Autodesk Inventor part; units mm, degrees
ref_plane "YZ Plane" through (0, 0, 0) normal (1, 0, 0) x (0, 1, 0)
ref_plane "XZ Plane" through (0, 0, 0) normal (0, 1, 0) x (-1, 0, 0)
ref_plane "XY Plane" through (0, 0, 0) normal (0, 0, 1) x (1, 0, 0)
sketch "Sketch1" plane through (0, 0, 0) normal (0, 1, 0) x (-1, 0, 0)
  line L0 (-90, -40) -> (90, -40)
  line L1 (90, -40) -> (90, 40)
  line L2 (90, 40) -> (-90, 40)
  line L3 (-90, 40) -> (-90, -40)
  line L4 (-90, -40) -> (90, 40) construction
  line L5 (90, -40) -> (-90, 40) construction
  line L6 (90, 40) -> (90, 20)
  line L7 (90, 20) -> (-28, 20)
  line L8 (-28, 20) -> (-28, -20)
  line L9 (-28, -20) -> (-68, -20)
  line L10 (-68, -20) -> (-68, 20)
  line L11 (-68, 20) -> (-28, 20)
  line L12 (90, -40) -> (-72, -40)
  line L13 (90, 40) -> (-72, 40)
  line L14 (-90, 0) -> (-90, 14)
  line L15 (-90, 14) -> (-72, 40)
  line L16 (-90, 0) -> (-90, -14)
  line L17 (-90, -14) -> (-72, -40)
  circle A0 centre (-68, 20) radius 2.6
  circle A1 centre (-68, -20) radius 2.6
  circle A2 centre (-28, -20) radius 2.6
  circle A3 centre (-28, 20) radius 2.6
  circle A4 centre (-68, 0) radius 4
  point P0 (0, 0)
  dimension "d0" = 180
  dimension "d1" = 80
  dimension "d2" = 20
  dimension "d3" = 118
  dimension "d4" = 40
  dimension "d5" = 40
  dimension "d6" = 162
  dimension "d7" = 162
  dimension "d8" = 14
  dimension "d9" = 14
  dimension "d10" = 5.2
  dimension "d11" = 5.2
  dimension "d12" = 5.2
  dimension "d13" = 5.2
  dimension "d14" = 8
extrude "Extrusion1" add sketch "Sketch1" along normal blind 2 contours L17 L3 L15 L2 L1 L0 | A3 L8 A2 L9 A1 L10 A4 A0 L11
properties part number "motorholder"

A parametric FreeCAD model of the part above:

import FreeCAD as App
import Part
import Sketcher
Q = App.Units.Quantity

doc = App.newDocument("Part")
body = doc.addObject("PartDesign::Body", "Body")

# Sketch on XZ plane
sketch1 = body.newObject("Sketcher::SketchObject", "Sketch")
sketch1.AttachmentSupport = (doc.getObject("XZ_Plane"), [""])
sketch1.MapMode = "FlatFace"
sketch1.addGeometry([
    Part.LineSegment(App.Vector(90, -14, 0), App.Vector(72, -40, 0)),  # 0
    Part.LineSegment(App.Vector(72, -40, 0), App.Vector(-90, -40, 0)),  # 1
    Part.LineSegment(App.Vector(-90, -40, 0), App.Vector(-90, 20, 0)),  # 2
    Part.LineSegment(App.Vector(-90, 20, 0), App.Vector(-90, 40, 0)),  # 3
    Part.LineSegment(App.Vector(-90, 40, 0), App.Vector(72, 40, 0)),  # 4
    Part.LineSegment(App.Vector(72, 40, 0), App.Vector(90, 14, 0)),  # 5
    Part.LineSegment(App.Vector(90, 14, 0), App.Vector(90, -14, 0)),  # 6
    Part.Circle(App.Vector(28, 20, 0), App.Vector(0, 0, 1), 2.6),  # 7
    Part.Circle(App.Vector(68, 20, 0), App.Vector(0, 0, 1), 2.6),  # 8
    Part.Circle(App.Vector(68, 0, 0), App.Vector(0, 0, 1), 4),  # 9
    Part.Circle(App.Vector(68, -20, 0), App.Vector(0, 0, 1), 2.6),  # 10
    Part.Circle(App.Vector(28, -20, 0), App.Vector(0, 0, 1), 2.6),  # 11
], False)
sketch1.addConstraint([
    Sketcher.Constraint("Coincident", 0, 2, 1, 1),
    Sketcher.Constraint("Coincident", 1, 2, 2, 1),
    Sketcher.Constraint("Coincident", 2, 2, 3, 1),
    Sketcher.Constraint("Coincident", 3, 2, 4, 1),
    Sketcher.Constraint("Coincident", 4, 2, 5, 1),
    Sketcher.Constraint("Coincident", 5, 2, 6, 1),
    Sketcher.Constraint("Coincident", 6, 2, 0, 1),
    Sketcher.Constraint("Horizontal", 1),
    Sketcher.Constraint("Vertical", 2),
    Sketcher.Constraint("Vertical", 3),
    Sketcher.Constraint("Horizontal", 4),
    Sketcher.Constraint("Vertical", 6),
    Sketcher.Constraint("Equal", 7, 8),
    Sketcher.Constraint("Equal", 8, 10),
    Sketcher.Constraint("Equal", 10, 11),
    Sketcher.Constraint("Symmetric", 8, 3, 10, 3, -1),
    Sketcher.Constraint("Symmetric", 7, 3, 11, 3, -1),
    Sketcher.Constraint("Symmetric", 0, 2, 4, 2, -1),
    Sketcher.Constraint("PointOnObject", 9, 3, -1),
    Sketcher.Constraint("Horizontal", 7, 3, 8, 3),
    Sketcher.Constraint("Horizontal", 8, 3, 2, 2),
    Sketcher.Constraint("Vertical", 8, 3, 9, 3),
    Sketcher.Constraint("Equal", 0, 5),
    Sketcher.Constraint("Diameter", 9, Q("8 mm")),
    Sketcher.Constraint("Diameter", 7, Q("5.2 mm")),
    Sketcher.Constraint("DistanceX", 1, 2, 1, 1, Q("162 mm")),
    Sketcher.Constraint("DistanceY", 3, 1, 3, 2, Q("20 mm")),
    Sketcher.Constraint("DistanceY", -1, 1, 7, 3, Q("20 mm")),
    Sketcher.Constraint("DistanceY", -1, 1, 5, 2, Q("14 mm")),
    Sketcher.Constraint("DistanceX", 7, 3, 8, 3, Q("40 mm")),
    Sketcher.Constraint("DistanceX", 1, 2, 11, 3, Q("118 mm")),
    Sketcher.Constraint("DistanceX", -1, 1, 7, 3, Q("28 mm")),
    Sketcher.Constraint("DistanceX", -1, 1, 5, 2, Q("90 mm")),
])
pad1 = body.newObject("PartDesign::Pad", "Pad")
pad1.Profile = sketch1
pad1.Length = 2
pad1.Reversed = True

doc.recompute()
